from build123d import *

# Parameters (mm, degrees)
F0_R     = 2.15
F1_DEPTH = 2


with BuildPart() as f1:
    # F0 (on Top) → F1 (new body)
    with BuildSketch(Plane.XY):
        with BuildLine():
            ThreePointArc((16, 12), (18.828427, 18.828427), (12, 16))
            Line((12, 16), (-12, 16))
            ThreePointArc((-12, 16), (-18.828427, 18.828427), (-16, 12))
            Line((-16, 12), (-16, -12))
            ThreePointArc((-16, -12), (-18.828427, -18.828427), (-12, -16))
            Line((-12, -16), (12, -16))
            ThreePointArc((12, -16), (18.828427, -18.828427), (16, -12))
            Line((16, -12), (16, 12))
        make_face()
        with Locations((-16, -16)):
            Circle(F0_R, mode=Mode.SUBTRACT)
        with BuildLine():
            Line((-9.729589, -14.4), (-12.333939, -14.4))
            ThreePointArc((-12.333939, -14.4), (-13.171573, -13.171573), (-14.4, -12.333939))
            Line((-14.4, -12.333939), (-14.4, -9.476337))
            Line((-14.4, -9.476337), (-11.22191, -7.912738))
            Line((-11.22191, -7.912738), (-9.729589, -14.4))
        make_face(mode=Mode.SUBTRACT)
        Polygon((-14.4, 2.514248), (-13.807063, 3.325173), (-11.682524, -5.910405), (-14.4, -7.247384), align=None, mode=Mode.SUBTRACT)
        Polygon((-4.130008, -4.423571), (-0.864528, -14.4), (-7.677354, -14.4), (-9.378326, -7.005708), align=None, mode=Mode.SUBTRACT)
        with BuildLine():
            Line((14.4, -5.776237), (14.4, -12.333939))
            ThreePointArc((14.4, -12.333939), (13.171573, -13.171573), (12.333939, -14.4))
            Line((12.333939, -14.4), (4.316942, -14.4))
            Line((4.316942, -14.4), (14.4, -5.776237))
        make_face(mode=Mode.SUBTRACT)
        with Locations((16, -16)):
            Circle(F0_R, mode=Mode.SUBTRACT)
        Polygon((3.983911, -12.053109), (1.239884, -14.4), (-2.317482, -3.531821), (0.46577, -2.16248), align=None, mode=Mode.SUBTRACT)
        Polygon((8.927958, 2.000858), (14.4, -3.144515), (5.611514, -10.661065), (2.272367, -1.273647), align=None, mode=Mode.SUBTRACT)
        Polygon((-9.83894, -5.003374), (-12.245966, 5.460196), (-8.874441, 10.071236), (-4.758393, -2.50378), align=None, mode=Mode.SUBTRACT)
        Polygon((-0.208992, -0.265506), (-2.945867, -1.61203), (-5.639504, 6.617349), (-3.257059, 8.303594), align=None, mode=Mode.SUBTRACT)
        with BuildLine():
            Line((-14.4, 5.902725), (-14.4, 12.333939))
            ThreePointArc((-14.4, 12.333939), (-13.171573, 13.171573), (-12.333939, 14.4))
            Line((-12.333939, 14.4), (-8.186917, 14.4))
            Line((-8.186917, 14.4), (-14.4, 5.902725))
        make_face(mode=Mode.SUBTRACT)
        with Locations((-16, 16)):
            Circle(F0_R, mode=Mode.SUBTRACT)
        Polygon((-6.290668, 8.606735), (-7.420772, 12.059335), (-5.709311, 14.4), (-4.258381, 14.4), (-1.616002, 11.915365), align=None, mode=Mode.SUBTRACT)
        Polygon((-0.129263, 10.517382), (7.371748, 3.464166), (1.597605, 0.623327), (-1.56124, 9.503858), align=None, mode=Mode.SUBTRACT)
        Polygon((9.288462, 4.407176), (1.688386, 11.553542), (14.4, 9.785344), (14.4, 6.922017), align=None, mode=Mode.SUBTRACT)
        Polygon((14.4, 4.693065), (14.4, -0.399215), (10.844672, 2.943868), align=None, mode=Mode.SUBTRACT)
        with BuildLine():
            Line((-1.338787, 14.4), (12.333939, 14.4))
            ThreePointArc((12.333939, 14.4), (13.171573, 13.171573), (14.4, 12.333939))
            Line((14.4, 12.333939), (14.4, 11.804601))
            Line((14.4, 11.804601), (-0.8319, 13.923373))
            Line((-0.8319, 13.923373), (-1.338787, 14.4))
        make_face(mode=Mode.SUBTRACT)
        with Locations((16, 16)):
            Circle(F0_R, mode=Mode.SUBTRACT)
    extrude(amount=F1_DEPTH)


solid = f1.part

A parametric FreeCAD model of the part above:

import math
import FreeCAD as App
import Part
import Sketcher
Q = App.Units.Quantity

doc = App.newDocument("Part")
body = doc.addObject("PartDesign::Body", "Body")

# Sketch on XY plane
sketch1 = body.newObject("Sketcher::SketchObject", "Sketch")
sketch1.AttachmentSupport = (doc.getObject("XY_Plane"), [""])
sketch1.MapMode = "FlatFace"
sketch1.addGeometry([
    Part.ArcOfCircle(Part.Circle(App.Vector(16, 16, 0), App.Vector(0, 0, 1), 4), math.radians(-89.999999), math.radians(179.999999)),  # 0
    Part.LineSegment(App.Vector(12, 16, 0), App.Vector(-12, 16, 0)),  # 1
    Part.ArcOfCircle(Part.Circle(App.Vector(-16, 16, 0), App.Vector(0, 0, 1), 4), math.radians(0.000001), math.radians(269.999999)),  # 2
    Part.LineSegment(App.Vector(-16, 12, 0), App.Vector(-16, -12, 0)),  # 3
    Part.ArcOfCircle(Part.Circle(App.Vector(-16, -16, 0), App.Vector(0, 0, 1), 4), math.radians(90.000001), math.radians(359.999999)),  # 4
    Part.LineSegment(App.Vector(-12, -16, 0), App.Vector(12, -16, 0)),  # 5
    Part.ArcOfCircle(Part.Circle(App.Vector(16, -16, 0), App.Vector(0, 0, 1), 4), math.radians(-179.999999), math.radians(89.999999)),  # 6
    Part.LineSegment(App.Vector(16, -12, 0), App.Vector(16, 12, 0)),  # 7
    Part.Circle(App.Vector(-16, -16, 0), App.Vector(0, 0, 1), 2.15),  # 8
    Part.LineSegment(App.Vector(-11.22191, -7.912738, 0), App.Vector(-9.729589, -14.4, 0)),  # 9
    Part.LineSegment(App.Vector(-9.729589, -14.4, 0), App.Vector(-12.333939, -14.4, 0)),  # 10
    Part.ArcOfCircle(Part.Circle(App.Vector(-16.000006, -16.000006, 0), App.Vector(0, 0, 1), 4.000008), math.radians(23.57822), math.radians(66.42178)),  # 11
    Part.LineSegment(App.Vector(-14.4, -12.333939, 0), App.Vector(-14.4, -9.476337, 0)),  # 12
    Part.LineSegment(App.Vector(-14.4, -9.476337, 0), App.Vector(-11.22191, -7.912738, 0)),  # 13
    Part.LineSegment(App.Vector(-9.378326, -7.005708, 0), App.Vector(-4.130008, -4.423571, 0)),  # 14
    Part.LineSegment(App.Vector(-4.130008, -4.423571, 0), App.Vector(-0.864528, -14.4, 0)),  # 15
    Part.LineSegment(App.Vector(-0.864528, -14.4, 0), App.Vector(-7.677354, -14.4, 0)),  # 16
    Part.LineSegment(App.Vector(-7.677354, -14.4, 0), App.Vector(-9.378326, -7.005708, 0)),  # 17
    Part.LineSegment(App.Vector(-14.4, -7.247384, 0), App.Vector(-14.4, 2.514248, 0)),  # 18
    Part.LineSegment(App.Vector(-14.4, 2.514248, 0), App.Vector(-13.807063, 3.325173, 0)),  # 19
    Part.LineSegment(App.Vector(-13.807063, 3.325173, 0), App.Vector(-11.682524, -5.910405, 0)),  # 20
    Part.LineSegment(App.Vector(-11.682524, -5.910405, 0), App.Vector(-14.4, -7.247384, 0)),  # 21
    Part.Circle(App.Vector(16, -16, 0), App.Vector(0, 0, 1), 2.15),  # 22
    Part.LineSegment(App.Vector(4.316942, -14.4, 0), App.Vector(14.4, -5.776237, 0)),  # 23
    Part.LineSegment(App.Vector(14.4, -5.776237, 0), App.Vector(14.4, -12.333939, 0)),  # 24
    Part.ArcOfCircle(Part.Circle(App.Vector(16.000006, -16.000006, 0), App.Vector(0, 0, 1), 4.000008), math.radians(113.57822), math.radians(156.42178)),  # 25
    Part.LineSegment(App.Vector(12.333939, -14.4, 0), App.Vector(4.316942, -14.4, 0)),  # 26
    Part.LineSegment(App.Vector(0.46577, -2.16248, 0), App.Vector(3.983911, -12.053109, 0)),  # 27
    Part.LineSegment(App.Vector(3.983911, -12.053109, 0), App.Vector(1.239884, -14.4, 0)),  # 28
    Part.LineSegment(App.Vector(1.239884, -14.4, 0), App.Vector(-2.317482, -3.531821, 0)),  # 29
    Part.LineSegment(App.Vector(-2.317482, -3.531821, 0), App.Vector(0.46577, -2.16248, 0)),  # 30
    Part.LineSegment(App.Vector(2.272367, -1.273647, 0), App.Vector(8.927958, 2.000858, 0)),  # 31
    Part.LineSegment(App.Vector(8.927958, 2.000858, 0), App.Vector(14.4, -3.144515, 0)),  # 32
    Part.LineSegment(App.Vector(14.4, -3.144515, 0), App.Vector(5.611514, -10.661065, 0)),  # 33
    Part.LineSegment(App.Vector(5.611514, -10.661065, 0), App.Vector(2.272367, -1.273647, 0)),  # 34
    Part.LineSegment(App.Vector(-4.758393, -2.50378, 0), App.Vector(-9.83894, -5.003374, 0)),  # 35
    Part.LineSegment(App.Vector(-9.83894, -5.003374, 0), App.Vector(-12.245966, 5.460196, 0)),  # 36
    Part.LineSegment(App.Vector(-12.245966, 5.460196, 0), App.Vector(-8.874441, 10.071236, 0)),  # 37
    Part.LineSegment(App.Vector(-8.874441, 10.071236, 0), App.Vector(-4.758393, -2.50378, 0)),  # 38
    Part.LineSegment(App.Vector(-3.257059, 8.303594, 0), App.Vector(-0.208992, -0.265506, 0)),  # 39
    Part.LineSegment(App.Vector(-0.208992, -0.265506, 0), App.Vector(-2.945867, -1.61203, 0)),  # 40
    Part.LineSegment(App.Vector(-2.945867, -1.61203, 0), App.Vector(-5.639504, 6.617349, 0)),  # 41
    Part.LineSegment(App.Vector(-5.639504, 6.617349, 0), App.Vector(-3.257059, 8.303594, 0)),  # 42
    Part.LineSegment(App.Vector(-8.186917, 14.4, 0), App.Vector(-14.4, 5.902725, 0)),  # 43
    Part.LineSegment(App.Vector(-14.4, 5.902725, 0), App.Vector(-14.4, 12.333939, 0)),  # 44
    Part.ArcOfCircle(Part.Circle(App.Vector(-16.000006, 16.000006, 0), App.Vector(0, 0, 1), 4.000008), math.radians(-66.42178), math.radians(-23.57822)),  # 45
    Part.LineSegment(App.Vector(-12.333939, 14.4, 0), App.Vector(-8.186917, 14.4, 0)),  # 46
    Part.Circle(App.Vector(-16, 16, 0), App.Vector(0, 0, 1), 2.15),  # 47
    Part.LineSegment(App.Vector(-1.616002, 11.915365, 0), App.Vector(-6.290668, 8.606735, 0)),  # 48
    Part.LineSegment(App.Vector(-6.290668, 8.606735, 0), App.Vector(-7.420772, 12.059335, 0)),  # 49
    Part.LineSegment(App.Vector(-7.420772, 12.059335, 0), App.Vector(-5.709311, 14.4, 0)),  # 50
    Part.LineSegment(App.Vector(-5.709311, 14.4, 0), App.Vector(-4.258381, 14.4, 0)),  # 51
    Part.LineSegment(App.Vector(-4.258381, 14.4, 0), App.Vector(-1.616002, 11.915365, 0)),  # 52
    Part.LineSegment(App.Vector(-1.56124, 9.503858, 0), App.Vector(-0.129263, 10.517382, 0)),  # 53
    Part.LineSegment(App.Vector(-0.129263, 10.517382, 0), App.Vector(7.371748, 3.464166, 0)),  # 54
    Part.LineSegment(App.Vector(7.371748, 3.464166, 0), App.Vector(1.597605, 0.623327, 0)),  # 55
    Part.LineSegment(App.Vector(1.597605, 0.623327, 0), App.Vector(-1.56124, 9.503858, 0)),  # 56
    Part.LineSegment(App.Vector(14.4, 6.922017, 0), App.Vector(9.288462, 4.407176, 0)),  # 57
    Part.LineSegment(App.Vector(9.288462, 4.407176, 0), App.Vector(1.688386, 11.553542, 0)),  # 58
    Part.LineSegment(App.Vector(1.688386, 11.553542, 0), App.Vector(14.4, 9.785344, 0)),  # 59
    Part.LineSegment(App.Vector(14.4, 9.785344, 0), App.Vector(14.4, 6.922017, 0)),  # 60
    Part.LineSegment(App.Vector(10.844672, 2.943868, 0), App.Vector(14.4, 4.693065, 0)),  # 61
    Part.LineSegment(App.Vector(14.4, 4.693065, 0), App.Vector(14.4, -0.399215, 0)),  # 62
    Part.LineSegment(App.Vector(14.4, -0.399215, 0), App.Vector(10.844672, 2.943868, 0)),  # 63
    Part.LineSegment(App.Vector(-0.8319, 13.923373, 0), App.Vector(-1.338787, 14.4, 0)),  # 64
    Part.LineSegment(App.Vector(-1.338787, 14.4, 0), App.Vector(12.333939, 14.4, 0)),  # 65
    Part.ArcOfCircle(Part.Circle(App.Vector(16.000006, 16.000006, 0), App.Vector(0, 0, 1), 4.000008), math.radians(-156.42178), math.radians(-113.57822)),  # 66
    Part.LineSegment(App.Vector(14.4, 12.333939, 0), App.Vector(14.4, 11.804601, 0)),  # 67
    Part.LineSegment(App.Vector(14.4, 11.804601, 0), App.Vector(-0.8319, 13.923373, 0)),  # 68
    Part.Circle(App.Vector(16, 16, 0), App.Vector(0, 0, 1), 2.15),  # 69
], False)
sketch1.addConstraint([
    Sketcher.Constraint("Coincident", 0, 2, 1, 1),
    Sketcher.Constraint("Coincident", 1, 2, 2, 1),
    Sketcher.Constraint("Coincident", 2, 2, 3, 1),
    Sketcher.Constraint("Coincident", 3, 2, 4, 1),
    Sketcher.Constraint("Coincident", 4, 2, 5, 1),
    Sketcher.Constraint("Coincident", 5, 2, 6, 1),
    Sketcher.Constraint("Coincident", 6, 2, 7, 1),
    Sketcher.Constraint("Coincident", 7, 2, 0, 1),
    Sketcher.Constraint("Coincident", 9, 2, 10, 1),
    Sketcher.Constraint("Coincident", 10, 2, 11, 1),
    Sketcher.Constraint("Coincident", 11, 2, 12, 1),
    Sketcher.Constraint("Coincident", 12, 2, 13, 1),
    Sketcher.Constraint("Coincident", 13, 2, 9, 1),
    Sketcher.Constraint("Coincident", 14, 2, 15, 1),
    Sketcher.Constraint("Coincident", 15, 2, 16, 1),
    Sketcher.Constraint("Coincident", 16, 2, 17, 1),
    Sketcher.Constraint("Coincident", 17, 2, 14, 1),
    Sketcher.Constraint("Coincident", 18, 2, 19, 1),
    Sketcher.Constraint("Coincident", 19, 2, 20, 1),
    Sketcher.Constraint("Coincident", 20, 2, 21, 1),
    Sketcher.Constraint("Coincident", 21, 2, 18, 1),
    Sketcher.Constraint("Coincident", 23, 2, 24, 1),
    Sketcher.Constraint("Coincident", 24, 2, 25, 1),
    Sketcher.Constraint("Coincident", 25, 2, 26, 1),
    Sketcher.Constraint("Coincident", 26, 2, 23, 1),
    Sketcher.Constraint("Coincident", 27, 2, 28, 1),
    Sketcher.Constraint("Coincident", 28, 2, 29, 1),
    Sketcher.Constraint("Coincident", 29, 2, 30, 1),
    Sketcher.Constraint("Coincident", 30, 2, 27, 1),
    Sketcher.Constraint("Coincident", 31, 2, 32, 1),
    Sketcher.Constraint("Coincident", 32, 2, 33, 1),
    Sketcher.Constraint("Coincident", 33, 2, 34, 1),
    Sketcher.Constraint("Coincident", 34, 2, 31, 1),
    Sketcher.Constraint("Coincident", 35, 2, 36, 1),
    Sketcher.Constraint("Coincident", 36, 2, 37, 1),
    Sketcher.Constraint("Coincident", 37, 2, 38, 1),
    Sketcher.Constraint("Coincident", 38, 2, 35, 1),
    Sketcher.Constraint("Coincident", 39, 2, 40, 1),
    Sketcher.Constraint("Coincident", 40, 2, 41, 1),
    Sketcher.Constraint("Coincident", 41, 2, 42, 1),
    Sketcher.Constraint("Coincident", 42, 2, 39, 1),
    Sketcher.Constraint("Coincident", 43, 2, 44, 1),
    Sketcher.Constraint("Coincident", 44, 2, 45, 1),
    Sketcher.Constraint("Coincident", 45, 2, 46, 1),
    Sketcher.Constraint("Coincident", 46, 2, 43, 1),
    Sketcher.Constraint("Coincident", 48, 2, 49, 1),
    Sketcher.Constraint("Coincident", 49, 2, 50, 1),
    Sketcher.Constraint("Coincident", 50, 2, 51, 1),
    Sketcher.Constraint("Coincident", 51, 2, 52, 1),
    Sketcher.Constraint("Coincident", 52, 2, 48, 1),
    Sketcher.Constraint("Coincident", 53, 2, 54, 1),
    Sketcher.Constraint("Coincident", 54, 2, 55, 1),
    Sketcher.Constraint("Coincident", 55, 2, 56, 1),
    Sketcher.Constraint("Coincident", 56, 2, 53, 1),
    Sketcher.Constraint("Coincident", 57, 2, 58, 1),
    Sketcher.Constraint("Coincident", 58, 2, 59, 1),
    Sketcher.Constraint("Coincident", 59, 2, 60, 1),
    Sketcher.Constraint("Coincident", 60, 2, 57, 1),
    Sketcher.Constraint("Coincident", 61, 2, 62, 1),
    Sketcher.Constraint("Coincident", 62, 2, 63, 1),
    Sketcher.Constraint("Coincident", 63, 2, 61, 1),
    Sketcher.Constraint("Coincident", 64, 2, 65, 1),
    Sketcher.Constraint("Coincident", 65, 2, 66, 1),
    Sketcher.Constraint("Coincident", 66, 2, 67, 1),
    Sketcher.Constraint("Coincident", 67, 2, 68, 1),
    Sketcher.Constraint("Coincident", 68, 2, 64, 1),
    Sketcher.Constraint("Horizontal", 1),
    Sketcher.Constraint("Vertical", 3),
    Sketcher.Constraint("Horizontal", 5),
    Sketcher.Constraint("Vertical", 7),
    Sketcher.Constraint("Horizontal", 10),
    Sketcher.Constraint("Vertical", 12),
    Sketcher.Constraint("Horizontal", 16),
    Sketcher.Constraint("Vertical", 18),
    Sketcher.Constraint("Vertical", 24),
    Sketcher.Constraint("Horizontal", 26),
    Sketcher.Constraint("Vertical", 44),
    Sketcher.Constraint("Horizontal", 46),
    Sketcher.Constraint("Horizontal", 51),
    Sketcher.Constraint("Vertical", 60),
    Sketcher.Constraint("Vertical", 62),
    Sketcher.Constraint("Horizontal", 65),
    Sketcher.Constraint("Vertical", 67),
    Sketcher.Constraint("Coincident", 8, 3, 4, 3),
    Sketcher.Constraint("Coincident", 11, 3, 4, 3),
    Sketcher.Constraint("Coincident", 22, 3, 6, 3),
    Sketcher.Constraint("Coincident", 25, 3, 6, 3),
    Sketcher.Constraint("Coincident", 45, 3, 2, 3),
    Sketcher.Constraint("Coincident", 47, 3, 2, 3),
    Sketcher.Constraint("Coincident", 66, 3, 0, 3),
    Sketcher.Constraint("Coincident", 69, 3, 0, 3),
    Sketcher.Constraint("Radius", 0, Q("4 mm")),
    Sketcher.Constraint("Radius", 2, Q("4 mm")),
    Sketcher.Constraint("Radius", 4, Q("4 mm")),
    Sketcher.Constraint("Radius", 6, Q("4 mm")),
    Sketcher.Constraint("Diameter", 8, Q("4.3 mm")),
    Sketcher.Constraint("Diameter", 22, Q("4.3 mm")),
    Sketcher.Constraint("Diameter", 47, Q("4.3 mm")),
    Sketcher.Constraint("Diameter", 69, Q("4.3 mm")),
    Sketcher.Constraint("DistanceX", 1, 2, 1, 1, Q("24 mm")),
    Sketcher.Constraint("DistanceX", 5, 1, 5, 2, Q("24 mm")),
    Sketcher.Constraint("DistanceY", 3, 2, 3, 1, Q("24 mm")),
    Sketcher.Constraint("DistanceY", 7, 1, 7, 2, Q("24 mm")),
    Sketcher.Constraint("DistanceX", -1, 1, 0, 3, Q("16 mm")),
    Sketcher.Constraint("DistanceY", -1, 1, 0, 3, Q("16 mm")),
    Sketcher.Constraint("DistanceY", -1, 1, 2, 3, Q("16 mm")),
    Sketcher.Constraint("DistanceX", 4, 3, -1, 1, Q("16 mm")),
    Sketcher.Constraint("DistanceY", -1, 1, 0, 2, Q("16 mm")),
    Sketcher.Constraint("DistanceX", 2, 2, -1, 1, Q("16 mm")),
    Sketcher.Constraint("DistanceY", 4, 2, -1, 1, Q("16 mm")),
    Sketcher.Constraint("DistanceX", -1, 1, 6, 2, Q("16 mm")),
    Sketcher.Constraint("DistanceY", 9, 2, -1, 1, Q("14.4 mm")),
    Sketcher.Constraint("DistanceX", 11, 2, -1, 1, Q("14.4 mm")),
    Sketcher.Constraint("DistanceY", 15, 2, -1, 1, Q("14.4 mm")),
    Sketcher.Constraint("DistanceX", 18, 2, -1, 1, Q("14.4 mm")),
    Sketcher.Constraint("DistanceX", -1, 1, 23, 2, Q("14.4 mm")),
    Sketcher.Constraint("DistanceY", 25, 2, -1, 1, Q("14.4 mm")),
    Sketcher.Constraint("DistanceY", 28, 2, -1, 1, Q("14.4 mm")),
    Sketcher.Constraint("DistanceX", -1, 1, 32, 2, Q("14.4 mm")),
    Sketcher.Constraint("DistanceX", 43, 2, -1, 1, Q("14.4 mm")),
    Sketcher.Constraint("DistanceY", -1, 1, 45, 2, Q("14.4 mm")),
    Sketcher.Constraint("DistanceY", -1, 1, 50, 2, Q("14.4 mm")),
    Sketcher.Constraint("DistanceX", -1, 1, 59, 2, Q("14.4 mm")),
    Sketcher.Constraint("DistanceX", -1, 1, 61, 2, Q("14.4 mm")),
    Sketcher.Constraint("DistanceY", -1, 1, 64, 2, Q("14.4 mm")),
    Sketcher.Constraint("DistanceX", -1, 1, 66, 2, Q("14.4 mm")),
    Sketcher.Constraint("Radius", 11, Q("4.000008 mm")),
    Sketcher.Constraint("Radius", 25, Q("4.000008 mm")),
    Sketcher.Constraint("Radius", 45, Q("4.000008 mm")),
    Sketcher.Constraint("Radius", 66, Q("4.000008 mm")),
    Sketcher.Constraint("DistanceX", 52, 2, -1, 1, Q("1.616002 mm")),
    Sketcher.Constraint("Distance", 32, Q("7.511199 mm")),
    Sketcher.Constraint("DistanceX", 10, 2, 10, 1, Q("2.60435 mm")),
    Sketcher.Constraint("DistanceX", 51, 1, 51, 2, Q("1.45093 mm")),
    Sketcher.Constraint("DistanceY", 62, 2, 62, 1, Q("5.09228 mm")),
    Sketcher.Constraint("DistanceY", 67, 2, 67, 1, Q("0.529338 mm")),
    Sketcher.Constraint("DistanceX", 68, 2, -1, 1, Q("0.8319 mm")),
    Sketcher.Constraint("Distance", 15, Q("10.497261 mm")),
    Sketcher.Constraint("Distance", 20, Q("9.476791 mm")),
    Sketcher.Constraint("Distance", 28, Q("3.610759 mm")),
    Sketcher.Constraint("Distance", 30, Q("3.101868 mm")),
    Sketcher.Constraint("Distance", 33, Q("11.564429 mm")),
    Sketcher.Constraint("Distance", 34, Q("9.96361 mm")),
    Sketcher.Constraint("Distance", 35, Q("5.662149 mm")),
    Sketcher.Constraint("Distance", 37, Q("5.712169 mm")),
    Sketcher.Constraint("Distance", 38, Q("13.231511 mm")),
    Sketcher.Constraint("Distance", 52, Q("3.627062 mm")),
    Sketcher.Constraint("Distance", 56, Q("9.42561 mm")),
    Sketcher.Constraint("Distance", 61, Q("3.962329 mm")),
    Sketcher.Constraint("Distance", 63, Q("4.880221 mm")),
    Sketcher.Constraint("Distance", 64, Q("0.695779 mm")),
    Sketcher.Constraint("DistanceX", 16, 2, 16, 1, Q("6.812826 mm")),
    Sketcher.Constraint("DistanceX", 26, 2, 26, 1, Q("8.016997 mm")),
    Sketcher.Constraint("DistanceX", 46, 1, 46, 2, Q("4.147022 mm")),
    Sketcher.Constraint("DistanceX", 65, 1, 65, 2, Q("13.672726 mm")),
    Sketcher.Constraint("DistanceY", 12, 1, 12, 2, Q("2.857602 mm")),
    Sketcher.Constraint("DistanceY", 18, 1, 18, 2, Q("9.761632 mm")),
    Sketcher.Constraint("DistanceY", 24, 2, 24, 1, Q("6.557702 mm")),
    Sketcher.Constraint("DistanceY", 44, 1, 44, 2, Q("6.431214 mm")),
    Sketcher.Constraint("DistanceY", 60, 2, 60, 1, Q("2.863327 mm")),
    Sketcher.Constraint("DistanceX", 13, 2, -1, 1, Q("11.22191 mm")),
    Sketcher.Constraint("DistanceY", 14, 2, -1, 1, Q("4.423571 mm")),
    Sketcher.Constraint("DistanceY", 17, 2, -1, 1, Q("7.005708 mm")),
    Sketcher.Constraint("DistanceX", -1, 1, 27, 2, Q("3.983911 mm")),
    Sketcher.Constraint("DistanceY", 27, 2, -1, 1, Q("12.053109 mm")),
    Sketcher.Constraint("DistanceX", 29, 2, -1, 1, Q("2.317482 mm")),
    Sketcher.Constraint("DistanceY", 29, 2, -1, 1, Q("3.531821 mm")),
    Sketcher.Constraint("DistanceX", -1, 1, 30, 2, Q("0.46577 mm")),
    Sketcher.Constraint("DistanceY", -1, 1, 31, 2, Q("2.000858 mm")),
    Sketcher.Constraint("DistanceX", 35, 2, -1, 1, Q("9.83894 mm")),
    Sketcher.Constraint("DistanceX", 37, 2, -1, 1, Q("8.874441 mm")),
    Sketcher.Constraint("DistanceY", 38, 2, -1, 1, Q("2.50378 mm")),
    Sketcher.Constraint("DistanceY", 40, 2, -1, 1, Q("1.61203 mm")),
    Sketcher.Constraint("DistanceY", -1, 1, 41, 2, Q("6.617349 mm")),
    Sketcher.Constraint("DistanceX", 42, 2, -1, 1, Q("3.257059 mm")),
    Sketcher.Constraint("DistanceX", 50, 2, -1, 1, Q("5.709311 mm")),
    Sketcher.Constraint("DistanceX", -1, 1, 54, 2, Q("7.371748 mm")),
    Sketcher.Constraint("DistanceX", 56, 2, -1, 1, Q("1.56124 mm")),
    Sketcher.Constraint("DistanceY", -1, 1, 63, 2, Q("2.943868 mm")),
    Sketcher.Constraint("Distance", 9, Q("6.656695 mm")),
    Sketcher.Constraint("Distance", 14, Q("5.849126 mm")),
    Sketcher.Constraint("Distance", 19, Q("1.004576 mm")),
    Sketcher.Constraint("Distance", 21, Q("3.028562 mm")),
    Sketcher.Constraint("Distance", 31, Q("7.417498 mm")),
    Sketcher.Constraint("Distance", 36, Q("10.736856 mm")),
    Sketcher.Constraint("Distance", 39, Q("9.095064 mm")),
    Sketcher.Constraint("Distance", 40, Q("3.050182 mm")),
    Sketcher.Constraint("Distance", 41, Q("8.659005 mm")),
    Sketcher.Constraint("Distance", 42, Q("2.918812 mm")),
    Sketcher.Constraint("Distance", 48, Q("5.727088 mm")),
    Sketcher.Constraint("Distance", 49, Q("3.632848 mm")),
    Sketcher.Constraint("Distance", 50, Q("2.899623 mm")),
    Sketcher.Constraint("Distance", 53, Q("1.754363 mm")),
    Sketcher.Constraint("Distance", 54, Q("10.296263 mm")),
    Sketcher.Constraint("Distance", 55, Q("6.435145 mm")),
    Sketcher.Constraint("Distance", 57, Q("5.696687 mm")),
    Sketcher.Constraint("Distance", 58, Q("10.432243 mm")),
    Sketcher.Constraint("Distance", 59, Q("12.834004 mm")),
    Sketcher.Constraint("DistanceX", 14, 2, -1, 1, Q("4.130008 mm")),
    Sketcher.Constraint("DistanceY", -1, 1, 18, 2, Q("2.514248 mm")),
    Sketcher.Constraint("DistanceX", 19, 2, -1, 1, Q("13.807063 mm")),
    Sketcher.Constraint("DistanceX", -1, 1, 31, 2, Q("8.927958 mm")),
    Sketcher.Constraint("DistanceX", -1, 1, 33, 2, Q("5.611514 mm")),
    Sketcher.Constraint("DistanceY", 35, 2, -1, 1, Q("5.003374 mm")),
    Sketcher.Constraint("DistanceX", 39, 2, -1, 1, Q("0.208992 mm")),
    Sketcher.Constraint("DistanceX", 48, 2, -1, 1, Q("6.290668 mm")),
    Sketcher.Constraint("DistanceX", 53, 2, -1, 1, Q("0.129263 mm")),
    Sketcher.Constraint("DistanceY", -1, 1, 53, 2, Q("10.517382 mm")),
    Sketcher.Constraint("DistanceX", -1, 1, 57, 2, Q("9.288462 mm")),
    Sketcher.Constraint("DistanceY", -1, 1, 57, 2, Q("4.407176 mm")),
])
pad1 = body.newObject("PartDesign::Pad", "Pad")
pad1.Profile = sketch1
pad1.Length = 2

doc.recompute()
